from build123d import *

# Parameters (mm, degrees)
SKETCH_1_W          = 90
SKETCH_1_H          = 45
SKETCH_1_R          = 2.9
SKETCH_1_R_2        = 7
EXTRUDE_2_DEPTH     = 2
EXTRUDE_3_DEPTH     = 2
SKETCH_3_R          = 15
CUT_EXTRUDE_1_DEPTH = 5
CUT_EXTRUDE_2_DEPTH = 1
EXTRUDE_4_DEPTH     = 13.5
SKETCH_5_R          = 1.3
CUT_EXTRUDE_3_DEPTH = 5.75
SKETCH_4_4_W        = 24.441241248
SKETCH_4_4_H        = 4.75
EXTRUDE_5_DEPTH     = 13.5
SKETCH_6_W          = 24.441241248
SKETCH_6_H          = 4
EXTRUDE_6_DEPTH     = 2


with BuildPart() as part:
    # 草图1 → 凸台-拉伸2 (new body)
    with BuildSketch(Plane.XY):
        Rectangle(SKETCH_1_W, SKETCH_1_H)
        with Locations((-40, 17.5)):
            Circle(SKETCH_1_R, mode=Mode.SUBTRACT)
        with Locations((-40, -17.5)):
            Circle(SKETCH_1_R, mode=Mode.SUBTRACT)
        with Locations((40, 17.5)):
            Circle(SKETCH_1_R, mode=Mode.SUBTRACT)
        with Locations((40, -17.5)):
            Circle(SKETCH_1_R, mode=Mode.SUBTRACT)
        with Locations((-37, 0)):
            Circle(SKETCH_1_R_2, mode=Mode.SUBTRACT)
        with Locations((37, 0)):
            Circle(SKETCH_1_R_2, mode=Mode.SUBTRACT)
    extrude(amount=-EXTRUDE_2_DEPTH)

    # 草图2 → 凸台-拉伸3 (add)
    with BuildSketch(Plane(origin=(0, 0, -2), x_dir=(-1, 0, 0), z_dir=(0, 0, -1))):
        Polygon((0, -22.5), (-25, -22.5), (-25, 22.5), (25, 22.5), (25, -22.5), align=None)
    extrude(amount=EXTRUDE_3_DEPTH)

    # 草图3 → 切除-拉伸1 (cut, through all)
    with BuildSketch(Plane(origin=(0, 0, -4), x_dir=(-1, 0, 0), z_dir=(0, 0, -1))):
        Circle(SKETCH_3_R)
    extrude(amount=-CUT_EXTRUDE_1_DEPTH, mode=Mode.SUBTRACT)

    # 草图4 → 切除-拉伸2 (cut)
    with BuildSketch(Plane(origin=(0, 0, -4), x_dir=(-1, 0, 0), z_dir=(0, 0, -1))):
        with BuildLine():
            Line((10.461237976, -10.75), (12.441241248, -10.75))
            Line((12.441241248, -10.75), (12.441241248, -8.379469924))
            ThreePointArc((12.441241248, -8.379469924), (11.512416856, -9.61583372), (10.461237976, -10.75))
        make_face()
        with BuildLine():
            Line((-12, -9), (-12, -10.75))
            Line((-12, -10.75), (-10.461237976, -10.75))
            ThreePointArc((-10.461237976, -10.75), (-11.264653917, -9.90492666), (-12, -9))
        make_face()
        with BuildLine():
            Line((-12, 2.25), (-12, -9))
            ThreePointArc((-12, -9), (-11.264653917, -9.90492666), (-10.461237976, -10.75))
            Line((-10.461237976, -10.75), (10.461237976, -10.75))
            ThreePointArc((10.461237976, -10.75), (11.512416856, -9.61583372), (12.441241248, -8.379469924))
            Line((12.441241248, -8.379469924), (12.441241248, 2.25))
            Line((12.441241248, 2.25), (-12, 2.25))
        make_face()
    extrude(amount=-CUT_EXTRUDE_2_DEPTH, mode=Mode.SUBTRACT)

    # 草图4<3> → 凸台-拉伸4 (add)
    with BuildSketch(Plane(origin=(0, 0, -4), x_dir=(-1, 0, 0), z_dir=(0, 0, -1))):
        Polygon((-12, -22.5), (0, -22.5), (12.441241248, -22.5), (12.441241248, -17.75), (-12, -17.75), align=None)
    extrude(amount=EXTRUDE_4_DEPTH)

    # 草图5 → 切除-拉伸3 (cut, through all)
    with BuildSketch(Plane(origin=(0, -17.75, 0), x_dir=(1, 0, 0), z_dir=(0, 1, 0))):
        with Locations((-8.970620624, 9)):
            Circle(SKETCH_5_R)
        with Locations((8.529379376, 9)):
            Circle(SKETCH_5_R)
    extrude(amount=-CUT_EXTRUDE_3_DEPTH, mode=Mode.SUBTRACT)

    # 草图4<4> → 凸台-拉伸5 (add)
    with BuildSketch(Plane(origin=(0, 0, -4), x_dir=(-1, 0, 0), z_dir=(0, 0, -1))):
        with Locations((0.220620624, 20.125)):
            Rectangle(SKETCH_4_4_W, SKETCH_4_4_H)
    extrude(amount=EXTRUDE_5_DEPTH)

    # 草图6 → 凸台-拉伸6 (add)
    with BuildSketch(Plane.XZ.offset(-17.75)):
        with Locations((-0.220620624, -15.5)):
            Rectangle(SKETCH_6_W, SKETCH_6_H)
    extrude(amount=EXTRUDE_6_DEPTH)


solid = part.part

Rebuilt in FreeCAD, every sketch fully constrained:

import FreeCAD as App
import Part
import Sketcher

doc = App.newDocument("Part")
params = doc.addObject("Spreadsheet::Sheet", "Params")
for row, (alias, value) in enumerate([
    ("sketch1_diameter", "14 mm"),
    ("sketch1_diameter2", "5.8 mm"),
    ("sketch1_width", "90 mm"),
    ("sketch1_height", "45 mm"),
    ("pad1_length", "2 mm"),
    ("sketch2_width", "50 mm"),
    ("sketch2_height", "45 mm"),
    ("pad2_length", "2 mm"),
    ("sketch3_diameter", "30 mm"),
    ("sketch4_height", "13 mm"),
    ("pocket2_length", "1 mm"),
    ("sketch5_height", "4.75 mm"),
    ("pad3_length", "13.5 mm"),
    ("sketch6_diameter", "2.6 mm"),
    ("sketch7_height", "4.75 mm"),
    ("pad4_length", "13.5 mm"),
    ("sketch8_height", "4 mm"),
    ("pad5_length", "2 mm"),
], start=1):
    params.set(f"A{row}", alias)
    params.set(f"B{row}", "=" + value)
    params.setAlias(f"B{row}", alias)

body = doc.addObject("PartDesign::Body", "Body")

# Sketch on XY plane
sketch1 = body.newObject("Sketcher::SketchObject", "Sketch")
sketch1.AttachmentSupport = (doc.getObject("XY_Plane"), [""])
sketch1.MapMode = "FlatFace"
sketch1.addGeometry([
    Part.LineSegment(App.Vector(-45, 22.5, 0), App.Vector(-45, -22.5, 0)),  # 0
    Part.LineSegment(App.Vector(-45, -22.5, 0), App.Vector(45, -22.5, 0)),  # 1
    Part.LineSegment(App.Vector(45, -22.5, 0), App.Vector(45, 22.5, 0)),  # 2
    Part.LineSegment(App.Vector(45, 22.5, 0), App.Vector(-45, 22.5, 0)),  # 3
    Part.Circle(App.Vector(-40, -17.5, 0), App.Vector(0, 0, 1), 2.9),  # 4
    Part.Circle(App.Vector(40, -17.5, 0), App.Vector(0, 0, 1), 2.9),  # 5
    Part.Circle(App.Vector(-37, 0, 0), App.Vector(0, 0, 1), 7),  # 6
    Part.Circle(App.Vector(-40, 17.5, 0), App.Vector(0, 0, 1), 2.9),  # 7
    Part.Circle(App.Vector(37, 0, 0), App.Vector(0, 0, 1), 7),  # 8
    Part.Circle(App.Vector(40, 17.5, 0), App.Vector(0, 0, 1), 2.9),  # 9
], False)
sketch1.addConstraint([
    Sketcher.Constraint("Coincident", 0, 2, 1, 1),
    Sketcher.Constraint("Coincident", 1, 2, 2, 1),
    Sketcher.Constraint("Coincident", 2, 2, 3, 1),
    Sketcher.Constraint("Coincident", 3, 2, 0, 1),
    Sketcher.Constraint("Vertical", 0),
    Sketcher.Constraint("Horizontal", 1),
    Sketcher.Constraint("Vertical", 2),
    Sketcher.Constraint("Horizontal", 3),
    Sketcher.Constraint("Equal", 4, 5),
    Sketcher.Constraint("Equal", 5, 7),
    Sketcher.Constraint("Equal", 6, 8),
    Sketcher.Constraint("Equal", 7, 9),
    Sketcher.Constraint("Symmetric", 5, 3, 7, 3, -1, 1),
    Sketcher.Constraint("Symmetric", 6, 3, 8, 3, -1, 1),
    Sketcher.Constraint("Symmetric", 4, 3, 9, 3, -1, 1),
    Sketcher.Constraint("Symmetric", 0, 2, 2, 2, -1, 1),
    Sketcher.Constraint("Symmetric", 4, 3, 5, 3, -2),
    Sketcher.Constraint("PointOnObject", 6, 3, -1),
    Sketcher.Constraint("Diameter", 6, 14.0),
    Sketcher.Constraint("Diameter", 4, 5.8),
    Sketcher.Constraint("DistanceX", 1, 1, 1, 2, 90.0),
    Sketcher.Constraint("DistanceY", 0, 2, 0, 1, 45.0),
    Sketcher.Constraint("DistanceX", 4, 3, -1, 1, 40.0),
    Sketcher.Constraint("DistanceX", 6, 3, -1, 1, 37.0),
    Sketcher.Constraint("DistanceY", 4, 3, 7, 3, 35.0),
])
sketch1.setExpression("Constraints[18]", "Params.sketch1_diameter")
sketch1.setExpression("Constraints[19]", "Params.sketch1_diameter2")
sketch1.setExpression("Constraints[20]", "Params.sketch1_width")
sketch1.setExpression("Constraints[21]", "Params.sketch1_height")
pad1 = body.newObject("PartDesign::Pad", "Pad")
pad1.Profile = sketch1
pad1.setExpression("Length", "Params.pad1_length")
pad1.Reversed = True

# Sketch on XY plane
sketch2 = body.newObject("Sketcher::SketchObject", "Sketch001")
sketch2.AttachmentSupport = (doc.getObject("XY_Plane"), [""])
sketch2.MapMode = "FlatFace"
sketch2.AttachmentOffset = App.Placement(App.Vector(0, 0, -2), App.Rotation())
sketch2.addGeometry([
    Part.LineSegment(App.Vector(25, -22, 0), App.Vector(-25, -22, 0)),
    Part.LineSegment(App.Vector(-25, -22, 0), App.Vector(-25, 22, 0)),
    Part.LineSegment(App.Vector(-25, 22, 0), App.Vector(25, 22, 0)),
    Part.LineSegment(App.Vector(25, 22, 0), App.Vector(25, -22, 0)),
], False)
sketch2.addConstraint([
    Sketcher.Constraint("Coincident", 0, 2, 1, 1),
    Sketcher.Constraint("Coincident", 1, 2, 2, 1),
    Sketcher.Constraint("Coincident", 2, 2, 3, 1),
    Sketcher.Constraint("Coincident", 3, 2, 0, 1),
    Sketcher.Constraint("Horizontal", 0),
    Sketcher.Constraint("Vertical", 1),
    Sketcher.Constraint("Horizontal", 2),
    Sketcher.Constraint("Vertical", 3),
    Sketcher.Constraint("Symmetric", 0, 2, 2, 2, -1, 1),
    Sketcher.Constraint("DistanceX", 0, 2, 0, 1, 50.0),
    Sketcher.Constraint("DistanceY", 1, 1, 1, 2, 45.0),
])
sketch2.setExpression("Constraints[9]", "Params.sketch2_width")
sketch2.setExpression("Constraints[10]", "Params.sketch2_height")
pad2 = body.newObject("PartDesign::Pad", "Pad001")
pad2.Profile = sketch2
pad2.setExpression("Length", "Params.pad2_length")
pad2.Reversed = True

# Sketch on XY plane
sketch3 = body.newObject("Sketcher::SketchObject", "Sketch002")
sketch3.AttachmentSupport = (doc.getObject("XY_Plane"), [""])
sketch3.MapMode = "FlatFace"
sketch3.AttachmentOffset = App.Placement(App.Vector(0, 0, -4), App.Rotation())
sketch3.addGeometry(Part.Circle(App.Vector(0, 0, 0), App.Vector(0, 0, 1), 15), False)
sketch3.addConstraint([
    Sketcher.Constraint("Coincident", 0, 3, -1, 1),
    Sketcher.Constraint("Diameter", 0, 30.0),
])
sketch3.setExpression("Constraints[1]", "Params.sketch3_diameter")
pocket1 = body.newObject("PartDesign::Pocket", "Pocket")
pocket1.Profile = sketch3
pocket1.Type = "ThroughAll"
pocket1.Reversed = True

# Sketch on XY plane
sketch4 = body.newObject("Sketcher::SketchObject", "Sketch003")
sketch4.AttachmentSupport = (doc.getObject("XY_Plane"), [""])
sketch4.MapMode = "FlatFace"
sketch4.AttachmentOffset = App.Placement(App.Vector(0, 0, -4), App.Rotation())
sketch4.addGeometry([
    Part.LineSegment(App.Vector(-12, -11, 0), App.Vector(-12, 2, 0)),
    Part.LineSegment(App.Vector(-12, 2, 0), App.Vector(12, 2, 0)),
    Part.LineSegment(App.Vector(12, 2, 0), App.Vector(12, -11, 0)),
    Part.LineSegment(App.Vector(12, -11, 0), App.Vector(-12, -11, 0)),
], False)
sketch4.addConstraint([
    Sketcher.Constraint("Coincident", 0, 2, 1, 1),
    Sketcher.Constraint("Coincident", 1, 2, 2, 1),
    Sketcher.Constraint("Coincident", 2, 2, 3, 1),
    Sketcher.Constraint("Coincident", 3, 2, 0, 1),
    Sketcher.Constraint("Vertical", 0),
    Sketcher.Constraint("Horizontal", 1),
    Sketcher.Constraint("Vertical", 2),
    Sketcher.Constraint("Horizontal", 3),
    Sketcher.Constraint("DistanceY", 0, 1, 0, 2, 13.0),
    Sketcher.Constraint("DistanceX", -1, 1, 1, 2, 12.0),
    Sketcher.Constraint("DistanceY", -1, 1, 0, 2, 2.25),
    Sketcher.Constraint("DistanceX", 1, 1, 1, 2, 24.441241),
])
sketch4.setExpression("Constraints[8]", "Params.sketch4_height")
pocket2 = body.newObject("PartDesign::Pocket", "Pocket001")
pocket2.Profile = sketch4
pocket2.setExpression("Length", "Params.pocket2_length")
pocket2.Reversed = True

# Sketch on XY plane
sketch5 = body.newObject("Sketcher::SketchObject", "Sketch004")
sketch5.AttachmentSupport = (doc.getObject("XY_Plane"), [""])
sketch5.MapMode = "FlatFace"
sketch5.AttachmentOffset = App.Placement(App.Vector(0, 0, -4), App.Rotation())
sketch5.addGeometry([
    Part.LineSegment(App.Vector(12, -22.5, 0), App.Vector(-12.4, -22.5, 0)),
    Part.LineSegment(App.Vector(-12.4, -22.5, 0), App.Vector(-12.4, -17.8, 0)),
    Part.LineSegment(App.Vector(-12.4, -17.8, 0), App.Vector(12, -17.8, 0)),
    Part.LineSegment(App.Vector(12, -17.8, 0), App.Vector(12, -22.5, 0)),
], False)
sketch5.addConstraint([
    Sketcher.Constraint("Coincident", 0, 2, 1, 1),
    Sketcher.Constraint("Coincident", 1, 2, 2, 1),
    Sketcher.Constraint("Coincident", 2, 2, 3, 1),
    Sketcher.Constraint("Coincident", 3, 2, 0, 1),
    Sketcher.Constraint("Horizontal", 0),
    Sketcher.Constraint("Vertical", 1),
    Sketcher.Constraint("Horizontal", 2),
    Sketcher.Constraint("Vertical", 3),
    Sketcher.Constraint("DistanceX", -1, 1, 2, 2, 12.0),
    Sketcher.Constraint("DistanceY", 1, 1, 1, 2, 4.75),
    Sketcher.Constraint("DistanceY", 0, 2, -1, 1, 22.5),
    Sketcher.Constraint("DistanceX", 0, 2, 0, 1, 24.441241),
])
sketch5.setExpression("Constraints[9]", "Params.sketch5_height")
pad3 = body.newObject("PartDesign::Pad", "Pad002")
pad3.Profile = sketch5
pad3.setExpression("Length", "Params.pad3_length")
pad3.Reversed = True

# Sketch on XZ plane
sketch6 = body.newObject("Sketcher::SketchObject", "Sketch005")
sketch6.AttachmentSupport = (doc.getObject("XZ_Plane"), [""])
sketch6.MapMode = "FlatFace"
sketch6.AttachmentOffset = App.Placement(App.Vector(0, 0, 17.75), App.Rotation())
sketch6.addGeometry([
    Part.Circle(App.Vector(-9, -9, 0), App.Vector(0, 0, 1), 1.3),
    Part.Circle(App.Vector(8.5, -9, 0), App.Vector(0, 0, 1), 1.3),
], False)
sketch6.addConstraint([
    Sketcher.Constraint("Equal", 0, 1),
    Sketcher.Constraint("Horizontal", 0, 3, 1, 3),
    Sketcher.Constraint("Diameter", 0, 2.6),
    Sketcher.Constraint("DistanceY", 0, 3, -1, 1, 9.0),
    Sketcher.Constraint("DistanceX", 0, 3, 1, 3, 17.5),
    Sketcher.Constraint("DistanceX", 0, 3, -1, 1, 8.970621),
])
sketch6.setExpression("Constraints[2]", "Params.sketch6_diameter")
pocket3 = body.newObject("PartDesign::Pocket", "Pocket002")
pocket3.Profile = sketch6
pocket3.Type = "ThroughAll"
pocket3.Reversed = True

# Sketch on XY plane
sketch7 = body.newObject("Sketcher::SketchObject", "Sketch006")
sketch7.AttachmentSupport = (doc.getObject("XY_Plane"), [""])
sketch7.MapMode = "FlatFace"
sketch7.AttachmentOffset = App.Placement(App.Vector(0, 0, -4), App.Rotation())
sketch7.addGeometry([
    Part.LineSegment(App.Vector(12, 22.5, 0), App.Vector(12, 17.8, 0)),
    Part.LineSegment(App.Vector(12, 17.8, 0), App.Vector(-12.4, 17.8, 0)),
    Part.LineSegment(App.Vector(-12.4, 17.8, 0), App.Vector(-12.4, 22.5, 0)),
    Part.LineSegment(App.Vector(-12.4, 22.5, 0), App.Vector(12, 22.5, 0)),
], False)
sketch7.addConstraint([
    Sketcher.Constraint("Coincident", 0, 2, 1, 1),
    Sketcher.Constraint("Coincident", 1, 2, 2, 1),
    Sketcher.Constraint("Coincident", 2, 2, 3, 1),
    Sketcher.Constraint("Coincident", 3, 2, 0, 1),
    Sketcher.Constraint("Vertical", 0),
    Sketcher.Constraint("Horizontal", 1),
    Sketcher.Constraint("Vertical", 2),
    Sketcher.Constraint("Horizontal", 3),
    Sketcher.Constraint("DistanceX", -1, 1, 0, 2, 12.0),
    Sketcher.Constraint("DistanceY", 0, 2, 0, 1, 4.75),
    Sketcher.Constraint("DistanceY", -1, 1, 2, 2, 22.5),
    Sketcher.Constraint("DistanceX", 1, 2, 1, 1, 24.441241),
])
sketch7.setExpression("Constraints[9]", "Params.sketch7_height")
pad4 = body.newObject("PartDesign::Pad", "Pad003")
pad4.Profile = sketch7
pad4.setExpression("Length", "Params.pad4_length")
pad4.Reversed = True

# Sketch on XZ plane
sketch8 = body.newObject("Sketcher::SketchObject", "Sketch007")
sketch8.AttachmentSupport = (doc.getObject("XZ_Plane"), [""])
sketch8.MapMode = "FlatFace"
sketch8.AttachmentOffset = App.Placement(App.Vector(0, 0, -17.75), App.Rotation())
sketch8.addGeometry([
    Part.LineSegment(App.Vector(-12.4, -13.5, 0), App.Vector(-12.4, -17.5, 0)),
    Part.LineSegment(App.Vector(-12.4, -17.5, 0), App.Vector(12, -17.5, 0)),
    Part.LineSegment(App.Vector(12, -17.5, 0), App.Vector(12, -13.5, 0)),
    Part.LineSegment(App.Vector(12, -13.5, 0), App.Vector(-12.4, -13.5, 0)),
], False)
sketch8.addConstraint([
    Sketcher.Constraint("Coincident", 0, 2, 1, 1),
    Sketcher.Constraint("Coincident", 1, 2, 2, 1),
    Sketcher.Constraint("Coincident", 2, 2, 3, 1),
    Sketcher.Constraint("Coincident", 3, 2, 0, 1),
    Sketcher.Constraint("Vertical", 0),
    Sketcher.Constraint("Horizontal", 1),
    Sketcher.Constraint("Vertical", 2),
    Sketcher.Constraint("Horizontal", 3),
    Sketcher.Constraint("DistanceY", 0, 2, 0, 1, 4.0),
    Sketcher.Constraint("DistanceX", -1, 1, 1, 2, 12.0),
    Sketcher.Constraint("DistanceY", 0, 2, -1, 1, 17.5),
    Sketcher.Constraint("DistanceX", 1, 1, 1, 2, 24.441241),
])
sketch8.setExpression("Constraints[8]", "Params.sketch8_height")
pad5 = body.newObject("PartDesign::Pad", "Pad004")
pad5.Profile = sketch8
pad5.setExpression("Length", "Params.pad5_length")

doc.recompute()
